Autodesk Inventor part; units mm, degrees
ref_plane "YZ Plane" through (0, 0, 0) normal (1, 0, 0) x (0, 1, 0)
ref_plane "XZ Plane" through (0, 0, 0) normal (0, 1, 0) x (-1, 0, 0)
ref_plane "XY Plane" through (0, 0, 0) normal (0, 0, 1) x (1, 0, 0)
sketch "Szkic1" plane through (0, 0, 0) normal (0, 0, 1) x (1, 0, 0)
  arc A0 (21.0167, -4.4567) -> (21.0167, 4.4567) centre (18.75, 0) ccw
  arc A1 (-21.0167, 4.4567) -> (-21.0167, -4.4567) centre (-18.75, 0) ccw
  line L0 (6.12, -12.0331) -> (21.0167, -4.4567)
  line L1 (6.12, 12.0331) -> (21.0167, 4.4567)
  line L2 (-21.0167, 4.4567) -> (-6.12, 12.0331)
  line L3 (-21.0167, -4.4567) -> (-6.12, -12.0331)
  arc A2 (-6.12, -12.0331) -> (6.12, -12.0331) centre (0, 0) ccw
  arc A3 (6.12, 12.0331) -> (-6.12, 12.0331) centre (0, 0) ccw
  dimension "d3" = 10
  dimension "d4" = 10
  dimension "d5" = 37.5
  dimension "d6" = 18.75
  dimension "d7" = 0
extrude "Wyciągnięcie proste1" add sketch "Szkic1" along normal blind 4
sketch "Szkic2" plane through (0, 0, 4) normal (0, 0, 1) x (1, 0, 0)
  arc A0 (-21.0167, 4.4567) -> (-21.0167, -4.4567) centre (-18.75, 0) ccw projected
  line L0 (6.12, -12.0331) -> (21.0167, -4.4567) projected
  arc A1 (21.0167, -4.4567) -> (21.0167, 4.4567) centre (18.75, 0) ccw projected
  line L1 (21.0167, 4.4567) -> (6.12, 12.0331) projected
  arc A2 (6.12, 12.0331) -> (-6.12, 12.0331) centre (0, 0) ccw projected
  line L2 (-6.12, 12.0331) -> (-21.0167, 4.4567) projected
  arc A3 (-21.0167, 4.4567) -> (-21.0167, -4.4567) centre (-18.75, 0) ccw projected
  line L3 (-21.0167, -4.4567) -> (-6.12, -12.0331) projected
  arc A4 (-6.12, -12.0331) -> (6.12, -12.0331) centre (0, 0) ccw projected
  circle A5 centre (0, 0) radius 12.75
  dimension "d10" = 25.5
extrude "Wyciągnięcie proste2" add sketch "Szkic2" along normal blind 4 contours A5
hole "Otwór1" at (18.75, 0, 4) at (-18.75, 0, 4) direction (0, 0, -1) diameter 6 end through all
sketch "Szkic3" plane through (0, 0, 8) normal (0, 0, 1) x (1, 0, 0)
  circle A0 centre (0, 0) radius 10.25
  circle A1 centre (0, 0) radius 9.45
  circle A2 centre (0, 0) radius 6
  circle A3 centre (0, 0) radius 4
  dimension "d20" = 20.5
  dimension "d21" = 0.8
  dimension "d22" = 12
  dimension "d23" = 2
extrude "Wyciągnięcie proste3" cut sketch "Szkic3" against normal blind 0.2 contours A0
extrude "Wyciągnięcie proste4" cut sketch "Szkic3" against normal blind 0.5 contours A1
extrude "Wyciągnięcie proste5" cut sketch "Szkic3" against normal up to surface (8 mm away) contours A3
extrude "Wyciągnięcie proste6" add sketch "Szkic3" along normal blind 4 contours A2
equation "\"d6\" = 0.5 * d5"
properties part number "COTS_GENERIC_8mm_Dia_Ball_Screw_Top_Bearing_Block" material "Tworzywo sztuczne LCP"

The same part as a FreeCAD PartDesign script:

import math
import FreeCAD as App
import Part
import Sketcher

V = App.Vector

doc = App.newDocument("Part")
body = doc.addObject("PartDesign::Body", "Body")

sketch1 = body.newObject("Sketcher::SketchObject", "Sketch")
sketch1.AttachmentSupport = (doc.getObject("XY_Plane"), [""])
sketch1.MapMode = "FlatFace"
sketch1.addGeometry([
    Part.LineSegment(V(6, -12, 0), V(21, -4, 0)),
    Part.ArcOfCircle(Part.Circle(V(19, 0, 0), V(0, 0, 1), 5), math.radians(-63), math.radians(63)),
    Part.LineSegment(V(21, 4, 0), V(6, 12, 0)),
    Part.ArcOfCircle(Part.Circle(V(0, 0, 0), V(0, 0, 1), 13), math.radians(63), math.radians(117)),
    Part.LineSegment(V(-6, 12, 0), V(-21, 4, 0)),
    Part.ArcOfCircle(Part.Circle(V(-19, 0, 0), V(0, 0, 1), 5), math.radians(117), math.radians(243)),
    Part.LineSegment(V(-21, -4, 0), V(-6, -12, 0)),
    Part.ArcOfCircle(Part.Circle(V(0, 0, 0), V(0, 0, 1), 13), math.radians(-117), math.radians(-63)),
], False)
sketch1.addConstraint([
    Sketcher.Constraint("Tangent", 0, 2, 1, 1),
    Sketcher.Constraint("Tangent", 1, 2, 2, 1),
    Sketcher.Constraint("Tangent", 2, 2, 3, 1),
    Sketcher.Constraint("Tangent", 3, 2, 4, 1),
    Sketcher.Constraint("Tangent", 4, 2, 5, 1),
    Sketcher.Constraint("Tangent", 5, 2, 6, 1),
    Sketcher.Constraint("Tangent", 6, 2, 7, 1),
    Sketcher.Constraint("Tangent", 7, 2, 0, 1),
    Sketcher.Constraint("Coincident", 3, 3, -1, 1),
    Sketcher.Constraint("Coincident", 7, 3, -1, 1),
    Sketcher.Constraint("Equal", 1, 5),
    Sketcher.Constraint("Equal", 3, 7),
    Sketcher.Constraint("Symmetric", 1, 3, 5, 3, -1, 1),
    Sketcher.Constraint("PointOnObject", 1, 3, -1),
    Sketcher.Constraint("Radius", 1, 5.0),
    Sketcher.Constraint("Radius", 3, 13.5),
    Sketcher.Constraint("DistanceX", 5, 3, 1, 3, 37.5),
])
pad1 = body.newObject("PartDesign::Pad", "Pad")
pad1.Profile = sketch1
pad1.Length = 4

sketch2 = body.newObject("Sketcher::SketchObject", "Sketch001")
sketch2.AttachmentSupport = (doc.getObject("XY_Plane"), [""])
sketch2.MapMode = "FlatFace"
sketch2.AttachmentOffset = App.Placement(V(0, 0, 4), App.Rotation())
sketch2.addGeometry(Part.Circle(V(0, 0, 0), V(0, 0, 1), 13), False)
sketch2.addConstraint([
    Sketcher.Constraint("Coincident", 0, 3, -1, 1),
    Sketcher.Constraint("Diameter", 0, 25.5),
])
pad2 = body.newObject("PartDesign::Pad", "Pad001")
pad2.Profile = sketch2
pad2.Length = 4

sketch3 = body.newObject("Sketcher::SketchObject", "Sketch002")
sketch3.AttachmentSupport = (doc.getObject("XY_Plane"), [""])
sketch3.MapMode = "FlatFace"
sketch3.AttachmentOffset = App.Placement(V(0, 0, 4), App.Rotation())
sketch3.addGeometry([
    Part.Circle(V(18.8, 0, 0), V(0, 0, 1), 3),
    Part.Circle(V(-18.8, 0, 0), V(0, 0, 1), 3),
], False)
sketch3.addConstraint([
    Sketcher.Constraint("Equal", 0, 1),
    Sketcher.Constraint("Symmetric", 0, 3, 1, 3, -1, 1),
    Sketcher.Constraint("PointOnObject", 0, 3, -1),
    Sketcher.Constraint("Diameter", 0, 6.0),
    Sketcher.Constraint("DistanceX", 1, 3, 0, 3, 37.5),
])
doc.recompute()
hole = body.newObject("PartDesign::Hole", "Hole")
hole.Profile = sketch3
hole.ThreadType = "None"
hole.Diameter = 6
hole.DepthType = "ThroughAll"

sketch4 = body.newObject("Sketcher::SketchObject", "Sketch003")
sketch4.AttachmentSupport = (doc.getObject("XY_Plane"), [""])
sketch4.MapMode = "FlatFace"
sketch4.AttachmentOffset = App.Placement(V(0, 0, 8), App.Rotation())
sketch4.addGeometry([
    Part.Circle(V(0, 0, 0), V(0, 0, 1), 10),
    Part.Circle(V(0, 0, 0), V(0, 0, 1), 9),
], False)
sketch4.addConstraint([
    Sketcher.Constraint("Coincident", 0, 3, -1, 1),
    Sketcher.Constraint("Coincident", 1, 3, -1, 1),
    Sketcher.Constraint("Diameter", 0, 20.5),
    Sketcher.Constraint("Diameter", 1, 18.9),
])
pocket1 = body.newObject("PartDesign::Pocket", "Pocket")
pocket1.Profile = sketch4
pocket1.Length = 0.2

sketch5 = body.newObject("Sketcher::SketchObject", "Sketch004")
sketch5.AttachmentSupport = (doc.getObject("XY_Plane"), [""])
sketch5.MapMode = "FlatFace"
sketch5.AttachmentOffset = App.Placement(V(0, 0, 8), App.Rotation())
sketch5.addGeometry([
    Part.Circle(V(0, 0, 0), V(0, 0, 1), 9),
    Part.Circle(V(0, 0, 0), V(0, 0, 1), 6),
], False)
sketch5.addConstraint([
    Sketcher.Constraint("Coincident", 0, 3, -1, 1),
    Sketcher.Constraint("Coincident", 1, 3, -1, 1),
    Sketcher.Constraint("Diameter", 1, 12.0),
    Sketcher.Constraint("Diameter", 0, 18.9),
])
pocket2 = body.newObject("PartDesign::Pocket", "Pocket001")
pocket2.Profile = sketch5
pocket2.Length = 0.5

sketch6 = body.newObject("Sketcher::SketchObject", "Sketch005")
sketch6.AttachmentSupport = (doc.getObject("XY_Plane"), [""])
sketch6.MapMode = "FlatFace"
sketch6.AttachmentOffset = App.Placement(V(0, 0, 8), App.Rotation())
sketch6.addGeometry(Part.Circle(V(0, 0, 0), V(0, 0, 1), 4), False)
sketch6.addConstraint([
    Sketcher.Constraint("Coincident", 0, 3, -1, 1),
    Sketcher.Constraint("Diameter", 0, 8.0),
])
pocket3 = body.newObject("PartDesign::Pocket", "Pocket002")
pocket3.Profile = sketch6
pocket3.Length = 8

sketch7 = body.newObject("Sketcher::SketchObject", "Sketch006")
sketch7.AttachmentSupport = (doc.getObject("XY_Plane"), [""])
sketch7.MapMode = "FlatFace"
sketch7.AttachmentOffset = App.Placement(V(0, 0, 8), App.Rotation())
sketch7.addGeometry([
    Part.Circle(V(0, 0, 0), V(0, 0, 1), 6),
    Part.Circle(V(0, 0, 0), V(0, 0, 1), 4),
], False)
sketch7.addConstraint([
    Sketcher.Constraint("Coincident", 0, 3, -1, 1),
    Sketcher.Constraint("Coincident", 1, 3, -1, 1),
    Sketcher.Constraint("Diameter", 0, 12.0),
    Sketcher.Constraint("Diameter", 1, 8.0),
])
pad3 = body.newObject("PartDesign::Pad", "Pad002")
pad3.Profile = sketch7
pad3.Length = 4

doc.recompute()
